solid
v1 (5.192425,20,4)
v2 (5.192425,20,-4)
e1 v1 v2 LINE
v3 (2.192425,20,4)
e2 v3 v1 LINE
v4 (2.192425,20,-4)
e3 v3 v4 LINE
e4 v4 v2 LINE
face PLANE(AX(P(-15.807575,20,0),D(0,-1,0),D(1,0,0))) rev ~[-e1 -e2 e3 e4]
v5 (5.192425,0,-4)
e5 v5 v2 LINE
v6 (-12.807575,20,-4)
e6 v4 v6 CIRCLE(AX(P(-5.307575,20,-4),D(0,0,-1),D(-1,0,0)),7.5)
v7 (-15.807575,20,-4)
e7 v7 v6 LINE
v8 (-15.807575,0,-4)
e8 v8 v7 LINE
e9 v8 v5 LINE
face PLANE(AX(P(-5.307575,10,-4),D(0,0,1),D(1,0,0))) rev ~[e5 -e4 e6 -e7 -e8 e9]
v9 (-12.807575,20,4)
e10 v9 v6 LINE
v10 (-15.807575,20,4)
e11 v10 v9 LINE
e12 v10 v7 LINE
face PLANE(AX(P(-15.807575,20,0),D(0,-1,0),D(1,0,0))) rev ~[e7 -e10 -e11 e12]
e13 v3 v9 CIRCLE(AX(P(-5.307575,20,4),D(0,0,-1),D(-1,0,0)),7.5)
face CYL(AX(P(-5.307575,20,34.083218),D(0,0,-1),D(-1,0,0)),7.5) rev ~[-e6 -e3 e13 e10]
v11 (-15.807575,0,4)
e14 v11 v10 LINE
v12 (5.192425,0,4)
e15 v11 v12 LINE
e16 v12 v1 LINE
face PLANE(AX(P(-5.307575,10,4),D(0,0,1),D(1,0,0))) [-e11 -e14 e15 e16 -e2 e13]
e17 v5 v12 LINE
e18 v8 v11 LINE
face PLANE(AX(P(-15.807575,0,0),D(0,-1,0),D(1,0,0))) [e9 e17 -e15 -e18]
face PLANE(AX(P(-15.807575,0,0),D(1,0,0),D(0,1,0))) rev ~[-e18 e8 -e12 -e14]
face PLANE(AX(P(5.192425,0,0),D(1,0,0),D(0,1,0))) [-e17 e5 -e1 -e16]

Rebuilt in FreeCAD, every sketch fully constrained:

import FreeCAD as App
import Part
import Sketcher
from FreeCAD import Vector


def add_polygon(sketch, points):
    """Adds a closed chain of lines whose ends are joined by coincident constraints."""
    first, n = sketch.GeometryCount, len(points)
    for a, b in zip(points, points[1:] + points[:1]):
        sketch.addGeometry(Part.LineSegment(App.Vector(*a, 0), App.Vector(*b, 0)), False)
    for i in range(n):
        sketch.addConstraint(Sketcher.Constraint("Coincident", first + i, 2, first + (i + 1) % n, 1))

doc = App.newDocument("Part")
body = doc.addObject("PartDesign::Body", "Body")

# Sketch on XY plane
sketch1 = doc.addObject("Sketcher::SketchObject", "Sketch")
body.addObject(sketch1)
sketch1.AttachmentSupport = (doc.XY_Plane, [""])
sketch1.MapMode = "FlatFace"
add_polygon(sketch1, [(-16, 20), (-16, 0), (5, 0), (5, 20)])  # lines 0-3
sketch1.addConstraint([
    Sketcher.Constraint("Vertical", 0),
    Sketcher.Constraint("Horizontal", 1),
    Sketcher.Constraint("Vertical", 2),
    Sketcher.Constraint("Horizontal", 3),
    Sketcher.Constraint("PointOnObject", 0, 2, -1),
    Sketcher.Constraint("DistanceX", 1, 1, 1, 2, 21.0),
    Sketcher.Constraint("DistanceY", 0, 2, 0, 1, 20.0),
    Sketcher.Constraint("DistanceX", 0, 2, -1, 1, 15.807575),
])
pad1 = doc.addObject("PartDesign::Pad", "Pad")
body.addObject(pad1)
pad1.Profile = sketch1
pad1.Length = 8
pad1.Midplane = True

# Sketch on XY plane
sketch2 = doc.addObject("Sketcher::SketchObject", "Sketch001")
body.addObject(sketch2)
sketch2.AttachmentSupport = (doc.XY_Plane, [""])
sketch2.MapMode = "FlatFace"
sketch2.AttachmentOffset = App.Placement(Vector(0, 0, 4), App.Rotation())
sketch2.addGeometry(Part.Circle(Vector(-5, 20, 0), Vector(0, 0, 1), 8), False)
sketch2.addConstraint([
    Sketcher.Constraint("Diameter", 0, 15.0),
    Sketcher.Constraint("DistanceY", -1, 1, 0, 3, 20.0),
    Sketcher.Constraint("DistanceX", 0, 3, -1, 1, 5.307575),
])
doc.recompute()
hole = doc.addObject("PartDesign::Hole", "Hole")
body.addObject(hole)
hole.Profile = sketch2
hole.ThreadType = "None"
hole.Diameter = 15
hole.DepthType = "ThroughAll"

doc.recompute()
